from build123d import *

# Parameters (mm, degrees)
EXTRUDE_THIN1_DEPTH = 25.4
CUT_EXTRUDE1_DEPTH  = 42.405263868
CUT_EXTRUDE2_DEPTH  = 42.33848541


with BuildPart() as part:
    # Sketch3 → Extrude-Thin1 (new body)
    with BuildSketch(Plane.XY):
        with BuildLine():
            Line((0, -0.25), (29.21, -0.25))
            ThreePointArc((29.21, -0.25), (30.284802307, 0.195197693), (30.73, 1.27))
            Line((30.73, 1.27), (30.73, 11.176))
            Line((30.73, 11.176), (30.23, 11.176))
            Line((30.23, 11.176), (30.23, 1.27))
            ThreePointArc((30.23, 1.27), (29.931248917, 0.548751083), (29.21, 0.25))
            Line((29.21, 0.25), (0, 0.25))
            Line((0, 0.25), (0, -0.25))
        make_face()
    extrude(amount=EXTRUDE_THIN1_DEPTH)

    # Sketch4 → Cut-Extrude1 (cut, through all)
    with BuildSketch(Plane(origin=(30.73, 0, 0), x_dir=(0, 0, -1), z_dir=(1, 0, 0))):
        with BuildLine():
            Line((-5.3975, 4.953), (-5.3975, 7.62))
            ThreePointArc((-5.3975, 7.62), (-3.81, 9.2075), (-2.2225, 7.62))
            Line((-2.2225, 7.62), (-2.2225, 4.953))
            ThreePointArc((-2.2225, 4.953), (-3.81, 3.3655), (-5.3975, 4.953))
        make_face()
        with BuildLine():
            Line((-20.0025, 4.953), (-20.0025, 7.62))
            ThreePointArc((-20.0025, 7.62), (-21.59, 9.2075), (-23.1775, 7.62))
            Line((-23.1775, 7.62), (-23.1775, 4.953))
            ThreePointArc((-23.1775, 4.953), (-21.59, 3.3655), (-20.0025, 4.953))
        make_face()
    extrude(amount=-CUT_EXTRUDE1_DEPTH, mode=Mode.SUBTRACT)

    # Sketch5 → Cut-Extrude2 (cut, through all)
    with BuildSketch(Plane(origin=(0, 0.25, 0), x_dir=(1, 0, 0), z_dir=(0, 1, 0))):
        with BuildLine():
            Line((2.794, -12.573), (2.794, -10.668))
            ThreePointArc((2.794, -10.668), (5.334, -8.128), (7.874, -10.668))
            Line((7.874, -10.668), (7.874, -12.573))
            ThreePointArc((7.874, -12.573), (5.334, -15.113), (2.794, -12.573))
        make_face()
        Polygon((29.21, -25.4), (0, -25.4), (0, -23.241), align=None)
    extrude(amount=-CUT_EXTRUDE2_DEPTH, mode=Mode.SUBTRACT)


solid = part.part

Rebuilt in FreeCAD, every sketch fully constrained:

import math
import FreeCAD as App
import Part
import Sketcher
from FreeCAD import Vector
Q = App.Units.Quantity


def add_polygon(sketch, points):
    """Adds a closed chain of lines whose ends are joined by coincident constraints."""
    first, n = sketch.GeometryCount, len(points)
    for a, b in zip(points, points[1:] + points[:1]):
        sketch.addGeometry(Part.LineSegment(App.Vector(*a, 0), App.Vector(*b, 0)), False)
    for i in range(n):
        sketch.addConstraint(Sketcher.Constraint("Coincident", first + i, 2, first + (i + 1) % n, 1))

doc = App.newDocument("Part")
body = doc.addObject("PartDesign::Body", "Body")

# Sketch on XY plane
sketch1 = body.newObject("Sketcher::SketchObject", "Sketch")
sketch1.AttachmentSupport = (doc.getObject("XY_Plane"), [""])
sketch1.MapMode = "FlatFace"
sketch1.addGeometry([
    Part.LineSegment(Vector(0, -0.25, 0), Vector(29.21, -0.25, 0)),  # 0
    Part.ArcOfCircle(Part.Circle(Vector(29.21, 1.27, 0), Vector(0, 0, 1), 1.52), math.radians(-90), math.radians(0)),  # 1
    Part.LineSegment(Vector(30.73, 1.27, 0), Vector(30.73, 11.176, 0)),  # 2
    Part.LineSegment(Vector(30.73, 11.176, 0), Vector(30.23, 11.176, 0)),  # 3
    Part.LineSegment(Vector(30.23, 11.176, 0), Vector(30.23, 1.27, 0)),  # 4
    Part.ArcOfCircle(Part.Circle(Vector(29.21, 1.27, 0), Vector(0, 0, 1), 1.02), math.radians(-90), math.radians(0)),  # 5
    Part.LineSegment(Vector(29.21, 0.25, 0), Vector(0, 0.25, 0)),  # 6
    Part.LineSegment(Vector(0, 0.25, 0), Vector(0, -0.25, 0)),  # 7
], False)
sketch1.addConstraint([
    Sketcher.Constraint("Tangent", 0, 2, 1, 1),
    Sketcher.Constraint("Tangent", 1, 2, 2, 1),
    Sketcher.Constraint("Coincident", 2, 2, 3, 1),
    Sketcher.Constraint("Coincident", 3, 2, 4, 1),
    Sketcher.Constraint("Tangent", 4, 2, 5, 2),
    Sketcher.Constraint("Tangent", 5, 1, 6, 1),
    Sketcher.Constraint("Coincident", 6, 2, 7, 1),
    Sketcher.Constraint("Coincident", 7, 2, 0, 1),
    Sketcher.Constraint("Horizontal", 0),
    Sketcher.Constraint("Vertical", 2),
    Sketcher.Constraint("Horizontal", 3),
    Sketcher.Constraint("Vertical", 4),
    Sketcher.Constraint("Horizontal", 6),
    Sketcher.Constraint("Vertical", 7),
    Sketcher.Constraint("Coincident", 5, 3, 1, 3),
    Sketcher.Constraint("Symmetric", 6, 2, 7, 2, -1, 1),
    Sketcher.Constraint("DistanceX", 0, 1, 0, 2, Q("1.15 in")),
    Sketcher.Constraint("DistanceY", 2, 1, 2, 2, Q("0.39 in")),
    Sketcher.Constraint("DistanceY", -1, 1, 1, 3, Q("0.05 in")),
    Sketcher.Constraint("Radius", 1, 1.52),
])
pad1 = body.newObject("PartDesign::Pad", "Pad")
pad1.Profile = sketch1
pad1.Length = Q("1 in")

# Sketch on YZ plane
sketch2 = body.newObject("Sketcher::SketchObject", "Sketch001")
sketch2.AttachmentSupport = (doc.getObject("YZ_Plane"), [""])
sketch2.MapMode = "FlatFace"
sketch2.AttachmentOffset = App.Placement(Vector(0, 0, 30.73), App.Rotation())
sketch2.addGeometry([
    Part.LineSegment(Vector(7.62, 5.3975, 0), Vector(4.953, 5.3975, 0)),  # 0
    Part.ArcOfCircle(Part.Circle(Vector(4.953, 3.81, 0), Vector(0, 0, 1), 1.5875), math.radians(90), math.radians(270)),  # 1
    Part.LineSegment(Vector(4.953, 2.2225, 0), Vector(7.62, 2.2225, 0)),  # 2
    Part.ArcOfCircle(Part.Circle(Vector(7.62, 3.81, 0), Vector(0, 0, 1), 1.5875), math.radians(-90), math.radians(90)),  # 3
    Part.LineSegment(Vector(4.953, 20.0025, 0), Vector(7.62, 20.0025, 0)),  # 4
    Part.ArcOfCircle(Part.Circle(Vector(7.62, 21.59, 0), Vector(0, 0, 1), 1.5875), math.radians(-90), math.radians(90)),  # 5
    Part.LineSegment(Vector(7.62, 23.1775, 0), Vector(4.953, 23.1775, 0)),  # 6
    Part.ArcOfCircle(Part.Circle(Vector(4.953, 21.59, 0), Vector(0, 0, 1), 1.5875), math.radians(90), math.radians(270)),  # 7
], False)
sketch2.addConstraint([
    Sketcher.Constraint("Tangent", 0, 2, 1, 1),
    Sketcher.Constraint("Tangent", 1, 2, 2, 1),
    Sketcher.Constraint("Tangent", 2, 2, 3, 1),
    Sketcher.Constraint("Tangent", 3, 2, 0, 1),
    Sketcher.Constraint("Tangent", 4, 2, 5, 1),
    Sketcher.Constraint("Tangent", 5, 2, 6, 1),
    Sketcher.Constraint("Tangent", 6, 2, 7, 1),
    Sketcher.Constraint("Tangent", 7, 2, 4, 1),
    Sketcher.Constraint("Horizontal", 0),
    Sketcher.Constraint("Horizontal", 2),
    Sketcher.Constraint("Horizontal", 4),
    Sketcher.Constraint("Horizontal", 6),
    Sketcher.Constraint("Equal", 3, 5),
    Sketcher.Constraint("Vertical", 3, 3, 5, 3),
    Sketcher.Constraint("Vertical", 1, 3, 7, 3),
    Sketcher.Constraint("Radius", 1, Q("0.0625 in")),
    Sketcher.Constraint("DistanceX", -1, 1, 3, 3, Q("0.3 in")),
    Sketcher.Constraint("DistanceY", 3, 3, 5, 3, Q("0.7 in")),
    Sketcher.Constraint("DistanceX", 0, 2, 0, 1, Q("0.105 in")),
    Sketcher.Constraint("DistanceY", -1, 1, 1, 3, Q("0.15 in")),
])
pocket1 = body.newObject("PartDesign::Pocket", "Pocket")
pocket1.Profile = sketch2
pocket1.Type = "ThroughAll"

# Sketch on XZ plane
sketch3 = body.newObject("Sketcher::SketchObject", "Sketch002")
sketch3.AttachmentSupport = (doc.getObject("XZ_Plane"), [""])
sketch3.MapMode = "FlatFace"
sketch3.AttachmentOffset = App.Placement(Vector(0, 0, -0.25), App.Rotation())
sketch3.addGeometry(Part.LineSegment(Vector(2.794, 10.668, 0), Vector(2.794, 12.573, 0)), False)  # 0
sketch3.addGeometry(Part.ArcOfCircle(Part.Circle(Vector(5.334, 12.573, 0), Vector(0, 0, 1), 2.54), math.radians(0), math.radians(180)), False)  # 1
sketch3.addGeometry(Part.LineSegment(Vector(7.874, 12.573, 0), Vector(7.874, 10.668, 0)), False)  # 2
sketch3.addGeometry(Part.ArcOfCircle(Part.Circle(Vector(5.334, 10.668, 0), Vector(0, 0, 1), 2.54), math.radians(180), math.radians(360)), False)  # 3
add_polygon(sketch3, [(0, 25.4), (29.21, 25.4), (0, 23.241)])  # lines 4-6
sketch3.addConstraint([
    Sketcher.Constraint("Tangent", 0, 2, 1, 2),
    Sketcher.Constraint("Tangent", 1, 1, 2, 1),
    Sketcher.Constraint("Tangent", 2, 2, 3, 2),
    Sketcher.Constraint("Tangent", 3, 1, 0, 1),
    Sketcher.Constraint("Vertical", 0),
    Sketcher.Constraint("Vertical", 2),
    Sketcher.Constraint("Horizontal", 4),
    Sketcher.Constraint("Vertical", 6),
    Sketcher.Constraint("PointOnObject", 5, 2, -2),
    Sketcher.Constraint("Radius", 1, Q("0.1 in")),
    Sketcher.Constraint("DistanceY", -1, 1, 4, 2, Q("1 in")),
    Sketcher.Constraint("DistanceX", 4, 1, 4, 2, Q("1.15 in")),
    Sketcher.Constraint("DistanceY", 0, 1, 0, 2, Q("0.075 in")),
    Sketcher.Constraint("DistanceY", 6, 1, 6, 2, Q("0.085 in")),
    Sketcher.Constraint("DistanceX", -1, 1, 1, 3, Q("0.21 in")),
    Sketcher.Constraint("DistanceY", -1, 1, 3, 3, Q("0.42 in")),
])
pocket2 = body.newObject("PartDesign::Pocket", "Pocket001")
pocket2.Profile = sketch3
pocket2.Type = "ThroughAll"
pocket2.Reversed = True

doc.recompute()
